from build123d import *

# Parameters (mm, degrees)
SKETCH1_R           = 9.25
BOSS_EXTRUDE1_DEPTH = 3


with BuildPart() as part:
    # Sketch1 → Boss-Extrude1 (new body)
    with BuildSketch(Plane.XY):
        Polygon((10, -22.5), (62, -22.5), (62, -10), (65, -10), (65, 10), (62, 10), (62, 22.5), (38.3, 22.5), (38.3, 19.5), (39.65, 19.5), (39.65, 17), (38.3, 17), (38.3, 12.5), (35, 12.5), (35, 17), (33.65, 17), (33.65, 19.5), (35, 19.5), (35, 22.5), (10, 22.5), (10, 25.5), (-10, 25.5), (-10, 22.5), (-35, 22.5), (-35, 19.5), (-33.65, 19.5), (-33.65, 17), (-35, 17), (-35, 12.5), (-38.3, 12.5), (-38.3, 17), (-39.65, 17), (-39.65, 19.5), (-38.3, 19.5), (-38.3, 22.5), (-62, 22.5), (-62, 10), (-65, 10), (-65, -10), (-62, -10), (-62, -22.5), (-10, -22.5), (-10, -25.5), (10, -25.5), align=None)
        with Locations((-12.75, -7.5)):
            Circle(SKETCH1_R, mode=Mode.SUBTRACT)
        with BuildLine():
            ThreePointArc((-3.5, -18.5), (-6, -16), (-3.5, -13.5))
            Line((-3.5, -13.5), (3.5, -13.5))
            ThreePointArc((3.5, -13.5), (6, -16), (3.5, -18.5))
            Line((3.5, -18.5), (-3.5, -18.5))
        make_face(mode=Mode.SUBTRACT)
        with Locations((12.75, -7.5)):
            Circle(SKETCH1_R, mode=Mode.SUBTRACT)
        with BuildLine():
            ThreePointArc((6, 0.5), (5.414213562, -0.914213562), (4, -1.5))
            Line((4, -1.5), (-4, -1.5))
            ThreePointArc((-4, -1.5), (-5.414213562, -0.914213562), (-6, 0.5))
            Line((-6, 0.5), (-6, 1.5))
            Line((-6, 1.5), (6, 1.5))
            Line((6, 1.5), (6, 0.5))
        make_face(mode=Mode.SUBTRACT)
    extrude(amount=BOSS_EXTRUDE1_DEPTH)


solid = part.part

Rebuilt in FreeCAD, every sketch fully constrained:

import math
import FreeCAD as App
import Part
import Sketcher

V = App.Vector
Q = App.Units.Quantity

doc = App.newDocument("Part")
body = doc.addObject("PartDesign::Body", "Body")

# Sketch on XY plane
sketch1 = doc.addObject("Sketcher::SketchObject", "Sketch")
body.addObject(sketch1)
sketch1.AttachmentSupport = (doc.XY_Plane, [""])
sketch1.MapMode = "FlatFace"
sketch1.addGeometry(Part.LineSegment(V(10, -22.5, 0), V(62, -22.5, 0)), False)
sketch1.addGeometry(Part.LineSegment(V(62, -22.5, 0), V(62, -10, 0)), False)
sketch1.addGeometry(Part.LineSegment(V(62, -10, 0), V(65, -10, 0)), False)
sketch1.addGeometry(Part.LineSegment(V(65, -10, 0), V(65, 10, 0)), False)
sketch1.addGeometry(Part.LineSegment(V(65, 10, 0), V(62, 10, 0)), False)
sketch1.addGeometry(Part.LineSegment(V(62, 10, 0), V(62, 22.5, 0)), False)
sketch1.addGeometry(Part.LineSegment(V(62, 22.5, 0), V(38.3, 22.5, 0)), False)
sketch1.addGeometry(Part.LineSegment(V(38.3, 22.5, 0), V(38.3, 19.5, 0)), False)
sketch1.addGeometry(Part.LineSegment(V(38.3, 19.5, 0), V(39.6, 19.5, 0)), False)
sketch1.addGeometry(Part.LineSegment(V(39.6, 19.5, 0), V(39.6, 17, 0)), False)
sketch1.addGeometry(Part.LineSegment(V(39.6, 17, 0), V(38.3, 17, 0)), False)
sketch1.addGeometry(Part.LineSegment(V(38.3, 17, 0), V(38.3, 12.5, 0)), False)
sketch1.addGeometry(Part.LineSegment(V(38.3, 12.5, 0), V(35, 12.5, 0)), False)
sketch1.addGeometry(Part.LineSegment(V(35, 12.5, 0), V(35, 17, 0)), False)
sketch1.addGeometry(Part.LineSegment(V(35, 17, 0), V(33.6, 17, 0)), False)
sketch1.addGeometry(Part.LineSegment(V(33.6, 17, 0), V(33.6, 19.5, 0)), False)
sketch1.addGeometry(Part.LineSegment(V(33.6, 19.5, 0), V(35, 19.5, 0)), False)
sketch1.addGeometry(Part.LineSegment(V(35, 19.5, 0), V(35, 22.5, 0)), False)
sketch1.addGeometry(Part.LineSegment(V(35, 22.5, 0), V(10, 22.5, 0)), False)
sketch1.addGeometry(Part.LineSegment(V(10, 22.5, 0), V(10, 25.5, 0)), False)
sketch1.addGeometry(Part.LineSegment(V(10, 25.5, 0), V(-10, 25.5, 0)), False)
sketch1.addGeometry(Part.LineSegment(V(-10, 25.5, 0), V(-10, 22.5, 0)), False)
sketch1.addGeometry(Part.LineSegment(V(-10, 22.5, 0), V(-35, 22.5, 0)), False)
sketch1.addGeometry(Part.LineSegment(V(-35, 22.5, 0), V(-35, 19.5, 0)), False)
sketch1.addGeometry(Part.LineSegment(V(-35, 19.5, 0), V(-33.6, 19.5, 0)), False)
sketch1.addGeometry(Part.LineSegment(V(-33.6, 19.5, 0), V(-33.6, 17, 0)), False)
sketch1.addGeometry(Part.LineSegment(V(-33.6, 17, 0), V(-35, 17, 0)), False)
sketch1.addGeometry(Part.LineSegment(V(-35, 17, 0), V(-35, 12.5, 0)), False)
sketch1.addGeometry(Part.LineSegment(V(-35, 12.5, 0), V(-38.3, 12.5, 0)), False)
sketch1.addGeometry(Part.LineSegment(V(-38.3, 12.5, 0), V(-38.3, 17, 0)), False)
sketch1.addGeometry(Part.LineSegment(V(-38.3, 17, 0), V(-39.6, 17, 0)), False)
sketch1.addGeometry(Part.LineSegment(V(-39.6, 17, 0), V(-39.6, 19.5, 0)), False)
sketch1.addGeometry(Part.LineSegment(V(-39.6, 19.5, 0), V(-38.3, 19.5, 0)), False)
sketch1.addGeometry(Part.LineSegment(V(-38.3, 19.5, 0), V(-38.3, 22.5, 0)), False)
sketch1.addGeometry(Part.LineSegment(V(-38.3, 22.5, 0), V(-62, 22.5, 0)), False)
sketch1.addGeometry(Part.LineSegment(V(-62, 22.5, 0), V(-62, 10, 0)), False)
sketch1.addGeometry(Part.LineSegment(V(-62, 10, 0), V(-65, 10, 0)), False)
sketch1.addGeometry(Part.LineSegment(V(-65, 10, 0), V(-65, -10, 0)), False)
sketch1.addGeometry(Part.LineSegment(V(-65, -10, 0), V(-62, -10, 0)), False)
sketch1.addGeometry(Part.LineSegment(V(-62, -10, 0), V(-62, -22.5, 0)), False)
sketch1.addGeometry(Part.LineSegment(V(-62, -22.5, 0), V(-10, -22.5, 0)), False)
sketch1.addGeometry(Part.LineSegment(V(-10, -22.5, 0), V(-10, -25.5, 0)), False)
sketch1.addGeometry(Part.LineSegment(V(-10, -25.5, 0), V(10, -25.5, 0)), False)
sketch1.addGeometry(Part.LineSegment(V(10, -25.5, 0), V(10, -22.5, 0)), False)
sketch1.addGeometry(Part.LineSegment(V(3.5, -18.5, 0), V(-3.5, -18.5, 0)), False)
sketch1.addGeometry(Part.ArcOfCircle(Part.Circle(V(-3.5, -16, 0), V(0, 0, 1), 2.5), math.radians(90), math.radians(270)), False)
sketch1.addGeometry(Part.LineSegment(V(-3.5, -13.5, 0), V(3.5, -13.5, 0)), False)
sketch1.addGeometry(Part.ArcOfCircle(Part.Circle(V(3.5, -16, 0), V(0, 0, 1), 2.5), math.radians(-90), math.radians(90)), False)
sketch1.addGeometry(Part.Circle(V(-12.8, -7.5, 0), V(0, 0, 1), 9.2), False)
sketch1.addGeometry(Part.Circle(V(12.8, -7.5, 0), V(0, 0, 1), 9.2), False)
sketch1.addGeometry(Part.LineSegment(V(6, 1.5, 0), V(6, 0.5, 0)), False)
sketch1.addGeometry(Part.ArcOfCircle(Part.Circle(V(4, 0.5, 0), V(0, 0, 1), 2), math.radians(-90), math.radians(0)), False)
sketch1.addGeometry(Part.LineSegment(V(4, -1.5, 0), V(-4, -1.5, 0)), False)
sketch1.addGeometry(Part.ArcOfCircle(Part.Circle(V(-4, 0.5, 0), V(0, 0, 1), 2), math.radians(-180), math.radians(-90)), False)
sketch1.addGeometry(Part.LineSegment(V(-6, 0.5, 0), V(-6, 1.5, 0)), False)
sketch1.addGeometry(Part.LineSegment(V(-6, 1.5, 0), V(6, 1.5, 0)), False)
sketch1.addConstraint(Sketcher.Constraint("Coincident", 0, 2, 1, 1))
sketch1.addConstraint(Sketcher.Constraint("Coincident", 1, 2, 2, 1))
sketch1.addConstraint(Sketcher.Constraint("Coincident", 2, 2, 3, 1))
sketch1.addConstraint(Sketcher.Constraint("Coincident", 3, 2, 4, 1))
sketch1.addConstraint(Sketcher.Constraint("Coincident", 4, 2, 5, 1))
sketch1.addConstraint(Sketcher.Constraint("Coincident", 5, 2, 6, 1))
sketch1.addConstraint(Sketcher.Constraint("Coincident", 6, 2, 7, 1))
sketch1.addConstraint(Sketcher.Constraint("Coincident", 7, 2, 8, 1))
sketch1.addConstraint(Sketcher.Constraint("Coincident", 8, 2, 9, 1))
sketch1.addConstraint(Sketcher.Constraint("Coincident", 9, 2, 10, 1))
sketch1.addConstraint(Sketcher.Constraint("Coincident", 10, 2, 11, 1))
sketch1.addConstraint(Sketcher.Constraint("Coincident", 11, 2, 12, 1))
sketch1.addConstraint(Sketcher.Constraint("Coincident", 12, 2, 13, 1))
sketch1.addConstraint(Sketcher.Constraint("Coincident", 13, 2, 14, 1))
sketch1.addConstraint(Sketcher.Constraint("Coincident", 14, 2, 15, 1))
sketch1.addConstraint(Sketcher.Constraint("Coincident", 15, 2, 16, 1))
sketch1.addConstraint(Sketcher.Constraint("Coincident", 16, 2, 17, 1))
sketch1.addConstraint(Sketcher.Constraint("Coincident", 17, 2, 18, 1))
sketch1.addConstraint(Sketcher.Constraint("Coincident", 18, 2, 19, 1))
sketch1.addConstraint(Sketcher.Constraint("Coincident", 19, 2, 20, 1))
sketch1.addConstraint(Sketcher.Constraint("Coincident", 20, 2, 21, 1))
sketch1.addConstraint(Sketcher.Constraint("Coincident", 21, 2, 22, 1))
sketch1.addConstraint(Sketcher.Constraint("Coincident", 22, 2, 23, 1))
sketch1.addConstraint(Sketcher.Constraint("Coincident", 23, 2, 24, 1))
sketch1.addConstraint(Sketcher.Constraint("Coincident", 24, 2, 25, 1))
sketch1.addConstraint(Sketcher.Constraint("Coincident", 25, 2, 26, 1))
sketch1.addConstraint(Sketcher.Constraint("Coincident", 26, 2, 27, 1))
sketch1.addConstraint(Sketcher.Constraint("Coincident", 27, 2, 28, 1))
sketch1.addConstraint(Sketcher.Constraint("Coincident", 28, 2, 29, 1))
sketch1.addConstraint(Sketcher.Constraint("Coincident", 29, 2, 30, 1))
sketch1.addConstraint(Sketcher.Constraint("Coincident", 30, 2, 31, 1))
sketch1.addConstraint(Sketcher.Constraint("Coincident", 31, 2, 32, 1))
sketch1.addConstraint(Sketcher.Constraint("Coincident", 32, 2, 33, 1))
sketch1.addConstraint(Sketcher.Constraint("Coincident", 33, 2, 34, 1))
sketch1.addConstraint(Sketcher.Constraint("Coincident", 34, 2, 35, 1))
sketch1.addConstraint(Sketcher.Constraint("Coincident", 35, 2, 36, 1))
sketch1.addConstraint(Sketcher.Constraint("Coincident", 36, 2, 37, 1))
sketch1.addConstraint(Sketcher.Constraint("Coincident", 37, 2, 38, 1))
sketch1.addConstraint(Sketcher.Constraint("Coincident", 38, 2, 39, 1))
sketch1.addConstraint(Sketcher.Constraint("Coincident", 39, 2, 40, 1))
sketch1.addConstraint(Sketcher.Constraint("Coincident", 40, 2, 41, 1))
sketch1.addConstraint(Sketcher.Constraint("Coincident", 41, 2, 42, 1))
sketch1.addConstraint(Sketcher.Constraint("Coincident", 42, 2, 43, 1))
sketch1.addConstraint(Sketcher.Constraint("Coincident", 43, 2, 0, 1))
sketch1.addConstraint(Sketcher.Constraint("Tangent", 44, 2, 45, 2))
sketch1.addConstraint(Sketcher.Constraint("Tangent", 45, 1, 46, 1))
sketch1.addConstraint(Sketcher.Constraint("Tangent", 46, 2, 47, 2))
sketch1.addConstraint(Sketcher.Constraint("Tangent", 47, 1, 44, 1))
sketch1.addConstraint(Sketcher.Constraint("Tangent", 50, 2, 51, 2))
sketch1.addConstraint(Sketcher.Constraint("Tangent", 51, 1, 52, 1))
sketch1.addConstraint(Sketcher.Constraint("Tangent", 52, 2, 53, 2))
sketch1.addConstraint(Sketcher.Constraint("Tangent", 53, 1, 54, 1))
sketch1.addConstraint(Sketcher.Constraint("Coincident", 54, 2, 55, 1))
sketch1.addConstraint(Sketcher.Constraint("Coincident", 55, 2, 50, 1))
sketch1.addConstraint(Sketcher.Constraint("Horizontal", 0))
sketch1.addConstraint(Sketcher.Constraint("Vertical", 1))
sketch1.addConstraint(Sketcher.Constraint("Horizontal", 2))
sketch1.addConstraint(Sketcher.Constraint("Vertical", 3))
sketch1.addConstraint(Sketcher.Constraint("Horizontal", 4))
sketch1.addConstraint(Sketcher.Constraint("Vertical", 5))
sketch1.addConstraint(Sketcher.Constraint("Horizontal", 6))
sketch1.addConstraint(Sketcher.Constraint("Vertical", 7))
sketch1.addConstraint(Sketcher.Constraint("Horizontal", 8))
sketch1.addConstraint(Sketcher.Constraint("Vertical", 9))
sketch1.addConstraint(Sketcher.Constraint("Horizontal", 10))
sketch1.addConstraint(Sketcher.Constraint("Vertical", 11))
sketch1.addConstraint(Sketcher.Constraint("Horizontal", 12))
sketch1.addConstraint(Sketcher.Constraint("Vertical", 13))
sketch1.addConstraint(Sketcher.Constraint("Horizontal", 14))
sketch1.addConstraint(Sketcher.Constraint("Vertical", 15))
sketch1.addConstraint(Sketcher.Constraint("Horizontal", 16))
sketch1.addConstraint(Sketcher.Constraint("Vertical", 17))
sketch1.addConstraint(Sketcher.Constraint("Horizontal", 18))
sketch1.addConstraint(Sketcher.Constraint("Vertical", 19))
sketch1.addConstraint(Sketcher.Constraint("Horizontal", 20))
sketch1.addConstraint(Sketcher.Constraint("Vertical", 21))
sketch1.addConstraint(Sketcher.Constraint("Horizontal", 22))
sketch1.addConstraint(Sketcher.Constraint("Vertical", 23))
sketch1.addConstraint(Sketcher.Constraint("Horizontal", 24))
sketch1.addConstraint(Sketcher.Constraint("Vertical", 25))
sketch1.addConstraint(Sketcher.Constraint("Horizontal", 26))
sketch1.addConstraint(Sketcher.Constraint("Vertical", 27))
sketch1.addConstraint(Sketcher.Constraint("Horizontal", 28))
sketch1.addConstraint(Sketcher.Constraint("Vertical", 29))
sketch1.addConstraint(Sketcher.Constraint("Horizontal", 30))
sketch1.addConstraint(Sketcher.Constraint("Vertical", 31))
sketch1.addConstraint(Sketcher.Constraint("Horizontal", 32))
sketch1.addConstraint(Sketcher.Constraint("Vertical", 33))
sketch1.addConstraint(Sketcher.Constraint("Horizontal", 34))
sketch1.addConstraint(Sketcher.Constraint("Vertical", 35))
sketch1.addConstraint(Sketcher.Constraint("Horizontal", 36))
sketch1.addConstraint(Sketcher.Constraint("Vertical", 37))
sketch1.addConstraint(Sketcher.Constraint("Horizontal", 38))
sketch1.addConstraint(Sketcher.Constraint("Vertical", 39))
sketch1.addConstraint(Sketcher.Constraint("Horizontal", 40))
sketch1.addConstraint(Sketcher.Constraint("Vertical", 41))
sketch1.addConstraint(Sketcher.Constraint("Horizontal", 42))
sketch1.addConstraint(Sketcher.Constraint("Vertical", 43))
sketch1.addConstraint(Sketcher.Constraint("Horizontal", 44))
sketch1.addConstraint(Sketcher.Constraint("Horizontal", 46))
sketch1.addConstraint(Sketcher.Constraint("Vertical", 50))
sketch1.addConstraint(Sketcher.Constraint("Horizontal", 52))
sketch1.addConstraint(Sketcher.Constraint("Vertical", 54))
sketch1.addConstraint(Sketcher.Constraint("Horizontal", 55))
sketch1.addConstraint(Sketcher.Constraint("Equal", 48, 49))
sketch1.addConstraint(Sketcher.Constraint("Equal", 51, 53))
sketch1.addConstraint(Sketcher.Constraint("Symmetric", 0, 2, 34, 2, -1, 1))
sketch1.addConstraint(Sketcher.Constraint("Symmetric", 2, 2, 36, 2, -1, 1))
sketch1.addConstraint(Sketcher.Constraint("Symmetric", 4, 2, 38, 2, -1, 1))
sketch1.addConstraint(Sketcher.Constraint("Symmetric", 18, 2, 40, 2, -1, 1))
sketch1.addConstraint(Sketcher.Constraint("Symmetric", 20, 2, 42, 2, -1, 1))
sketch1.addConstraint(Sketcher.Constraint("Symmetric", 48, 3, 49, 3, -2))
sketch1.addConstraint(Sketcher.Constraint("Symmetric", 18, 2, 21, 2, -2))
sketch1.addConstraint(Sketcher.Constraint("Symmetric", 16, 2, 23, 2, -2))
sketch1.addConstraint(Sketcher.Constraint("Symmetric", 14, 2, 25, 2, -2))
sketch1.addConstraint(Sketcher.Constraint("Symmetric", 12, 2, 27, 2, -2))
sketch1.addConstraint(Sketcher.Constraint("Symmetric", 10, 2, 29, 2, -2))
sketch1.addConstraint(Sketcher.Constraint("Symmetric", 8, 2, 31, 2, -2))
sketch1.addConstraint(Sketcher.Constraint("Symmetric", 6, 2, 33, 2, -2))
sketch1.addConstraint(Sketcher.Constraint("Symmetric", 4, 2, 35, 2, -2))
sketch1.addConstraint(Sketcher.Constraint("Horizontal", 10, 2, 13, 2))
sketch1.addConstraint(Sketcher.Constraint("Horizontal", 8, 2, 15, 2))
sketch1.addConstraint(Sketcher.Constraint("Horizontal", 6, 2, 17, 2))
sketch1.addConstraint(Sketcher.Constraint("Vertical", 7, 2, 10, 2))
sketch1.addConstraint(Sketcher.Constraint("Vertical", 13, 2, 16, 2))
sketch1.addConstraint(Sketcher.Constraint("Equal", 10, 14))
sketch1.addConstraint(Sketcher.Constraint("Equal", 42, 3))
sketch1.addConstraint(Sketcher.Constraint("Equal", 38, 7))
sketch1.addConstraint(Sketcher.Constraint("Equal", 17, 19))
sketch1.addConstraint(Sketcher.Constraint("Radius", 51, Q("2 mm")))
sketch1.addConstraint(Sketcher.Constraint("Diameter", 48, Q("18.5 mm")))
sketch1.addConstraint(Sketcher.Constraint("Radius", 45, Q("2.5 mm")))
sketch1.addConstraint(Sketcher.Constraint("DistanceX", 0, 1, 0, 2, Q("52 mm")))
sketch1.addConstraint(Sketcher.Constraint("DistanceX", 2, 1, 2, 2, Q("3 mm")))
sketch1.addConstraint(Sketcher.Constraint("DistanceX", 18, 2, 18, 1, Q("25 mm")))
sketch1.addConstraint(Sketcher.Constraint("DistanceX", 20, 2, 20, 1, Q("20 mm")))
sketch1.addConstraint(Sketcher.Constraint("DistanceX", 44, 2, 44, 1, Q("7 mm")))
sketch1.addConstraint(Sketcher.Constraint("DistanceX", 52, 2, 52, 1, Q("8 mm")))
sketch1.addConstraint(Sketcher.Constraint("DistanceY", 50, 2, 50, 1, Q("1 mm")))
sketch1.addConstraint(Sketcher.Constraint("DistanceX", 6, 2, 6, 1, Q("23.7 mm")))
sketch1.addConstraint(Sketcher.Constraint("DistanceY", 1, 1, 1, 2, Q("12.5 mm")))
sketch1.addConstraint(Sketcher.Constraint("DistanceY", 9, 2, 9, 1, Q("2.5 mm")))
sketch1.addConstraint(Sketcher.Constraint("DistanceY", 11, 2, 11, 1, Q("4.5 mm")))
sketch1.addConstraint(Sketcher.Constraint("DistanceY", 45, 3, -1, 1, Q("16 mm")))
sketch1.addConstraint(Sketcher.Constraint("DistanceX", -1, 1, 51, 3, Q("4 mm")))
sketch1.addConstraint(Sketcher.Constraint("DistanceY", 49, 3, 51, 3, Q("8 mm")))
sketch1.addConstraint(Sketcher.Constraint("DistanceY", 0, 2, 49, 3, Q("15 mm")))
sketch1.addConstraint(Sketcher.Constraint("DistanceX", 14, 2, 9, 2, Q("6 mm")))
sketch1.addConstraint(Sketcher.Constraint("DistanceX", 45, 3, -1, 1, Q("3.5 mm")))
sketch1.addConstraint(Sketcher.Constraint("DistanceX", 48, 3, 49, 3, Q("25.5 mm")))
pad1 = doc.addObject("PartDesign::Pad", "Pad")
body.addObject(pad1)
pad1.Profile = sketch1
pad1.Length = 3

doc.recompute()
